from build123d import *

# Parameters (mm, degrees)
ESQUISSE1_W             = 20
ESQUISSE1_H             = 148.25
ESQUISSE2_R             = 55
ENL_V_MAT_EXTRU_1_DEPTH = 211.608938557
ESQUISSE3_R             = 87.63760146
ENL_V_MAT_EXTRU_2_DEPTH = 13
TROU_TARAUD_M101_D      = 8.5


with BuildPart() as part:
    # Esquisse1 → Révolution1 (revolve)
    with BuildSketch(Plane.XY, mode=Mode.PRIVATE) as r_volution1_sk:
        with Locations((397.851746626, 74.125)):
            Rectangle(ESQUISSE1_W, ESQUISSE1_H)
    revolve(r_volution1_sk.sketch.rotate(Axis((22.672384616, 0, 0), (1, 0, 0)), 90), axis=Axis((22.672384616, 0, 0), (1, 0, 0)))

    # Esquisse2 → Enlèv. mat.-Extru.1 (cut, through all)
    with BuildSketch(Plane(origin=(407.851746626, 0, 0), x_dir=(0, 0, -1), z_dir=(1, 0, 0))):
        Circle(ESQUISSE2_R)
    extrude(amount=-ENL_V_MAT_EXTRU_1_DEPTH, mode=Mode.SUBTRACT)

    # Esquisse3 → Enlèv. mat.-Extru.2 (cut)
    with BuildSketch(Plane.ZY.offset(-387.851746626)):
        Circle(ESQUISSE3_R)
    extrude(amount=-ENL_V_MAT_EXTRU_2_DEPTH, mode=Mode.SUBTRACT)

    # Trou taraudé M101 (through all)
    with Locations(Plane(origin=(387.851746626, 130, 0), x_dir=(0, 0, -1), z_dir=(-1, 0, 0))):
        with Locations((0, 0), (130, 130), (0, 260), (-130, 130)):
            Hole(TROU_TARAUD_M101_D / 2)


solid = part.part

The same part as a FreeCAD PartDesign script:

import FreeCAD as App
import Part
import Sketcher
Q = App.Units.Quantity

doc = App.newDocument("Part")
body = doc.addObject("PartDesign::Body", "Body")

# Sketch on XY plane
sketch1 = body.newObject("Sketcher::SketchObject", "Sketch")
sketch1.AttachmentSupport = (doc.getObject("XY_Plane"), [""])
sketch1.MapMode = "FlatFace"
sketch1.addGeometry([
    Part.LineSegment(App.Vector(387.851747, 148.25, 0), App.Vector(387.851747, 0, 0)),
    Part.LineSegment(App.Vector(387.851747, 0, 0), App.Vector(407.851747, 0, 0)),
    Part.LineSegment(App.Vector(407.851747, 0, 0), App.Vector(407.851747, 148.25, 0)),
    Part.LineSegment(App.Vector(407.851747, 148.25, 0), App.Vector(387.851747, 148.25, 0)),
], False)
sketch1.addConstraint([
    Sketcher.Constraint("Coincident", 0, 2, 1, 1),
    Sketcher.Constraint("Coincident", 1, 2, 2, 1),
    Sketcher.Constraint("Coincident", 2, 2, 3, 1),
    Sketcher.Constraint("Coincident", 3, 2, 0, 1),
    Sketcher.Constraint("Vertical", 0),
    Sketcher.Constraint("Horizontal", 1),
    Sketcher.Constraint("Vertical", 2),
    Sketcher.Constraint("Horizontal", 3),
    Sketcher.Constraint("PointOnObject", 0, 2, -1),
    Sketcher.Constraint("DistanceX", 1, 1, 1, 2, Q("20 mm")),
    Sketcher.Constraint("DistanceY", 0, 2, 0, 1, Q("148.25 mm")),
    Sketcher.Constraint("DistanceX", -1, 1, 0, 2, Q("387.851747 mm")),
])
revolution = body.newObject("PartDesign::Revolution", "Revolution")
revolution.Profile = sketch1
revolution.ReferenceAxis = (sketch1, ["H_Axis"])
revolution.Angle = 360

# Sketch on YZ plane
sketch2 = body.newObject("Sketcher::SketchObject", "Sketch001")
sketch2.AttachmentSupport = (doc.getObject("YZ_Plane"), [""])
sketch2.MapMode = "FlatFace"
sketch2.AttachmentOffset = App.Placement(App.Vector(0, 0, 407.851747), App.Rotation())
sketch2.addGeometry(Part.Circle(App.Vector(0, 0, 0), App.Vector(0, 0, 1), 55), False)
sketch2.addConstraint([
    Sketcher.Constraint("Coincident", 0, 3, -1, 1),
    Sketcher.Constraint("Diameter", 0, Q("110 mm")),
])
pocket1 = body.newObject("PartDesign::Pocket", "Pocket")
pocket1.Profile = sketch2
pocket1.Type = "ThroughAll"

# Sketch on YZ plane
sketch3 = body.newObject("Sketcher::SketchObject", "Sketch002")
sketch3.AttachmentSupport = (doc.getObject("YZ_Plane"), [""])
sketch3.MapMode = "FlatFace"
sketch3.AttachmentOffset = App.Placement(App.Vector(0, 0, 387.851747), App.Rotation())
sketch3.addGeometry(Part.Circle(App.Vector(0, 0, 0), App.Vector(0, 0, 1), 87.637601), False)
sketch3.addConstraint([
    Sketcher.Constraint("Coincident", 0, 3, -1, 1),
    Sketcher.Constraint("Diameter", 0, Q("175.275203 mm")),
])
pocket2 = body.newObject("PartDesign::Pocket", "Pocket001")
pocket2.Profile = sketch3
pocket2.Length = 13
pocket2.Reversed = True

# Sketch on YZ plane
sketch4 = body.newObject("Sketcher::SketchObject", "Sketch003")
sketch4.AttachmentSupport = (doc.getObject("YZ_Plane"), [""])
sketch4.MapMode = "FlatFace"
sketch4.AttachmentOffset = App.Placement(App.Vector(0, 0, 387.851747), App.Rotation())
sketch4.addGeometry([
    Part.Circle(App.Vector(130, 0, 0), App.Vector(0, 0, 1), 4.25),
    Part.Circle(App.Vector(0, -130, 0), App.Vector(0, 0, 1), 4.25),
    Part.Circle(App.Vector(-130, 0, 0), App.Vector(0, 0, 1), 4.25),
    Part.Circle(App.Vector(0, 130, 0), App.Vector(0, 0, 1), 4.25),
], False)
sketch4.addConstraint([
    Sketcher.Constraint("Equal", 0, 1),
    Sketcher.Constraint("Equal", 1, 2),
    Sketcher.Constraint("Equal", 2, 3),
    Sketcher.Constraint("Symmetric", 0, 3, 2, 3, -1, 1),
    Sketcher.Constraint("Symmetric", 1, 3, 3, 3, -1, 1),
    Sketcher.Constraint("PointOnObject", 0, 3, -1),
    Sketcher.Constraint("PointOnObject", 1, 3, -2),
    Sketcher.Constraint("Diameter", 0, Q("8.5 mm")),
    Sketcher.Constraint("DistanceX", -1, 1, 0, 3, Q("130 mm")),
    Sketcher.Constraint("DistanceY", 1, 3, -1, 1, Q("130 mm")),
])
doc.recompute()
hole = body.newObject("PartDesign::Hole", "Hole")
hole.Profile = sketch4
hole.ThreadType = "None"
hole.Diameter = 8.5
hole.DepthType = "ThroughAll"
hole.Reversed = True

doc.recompute()
